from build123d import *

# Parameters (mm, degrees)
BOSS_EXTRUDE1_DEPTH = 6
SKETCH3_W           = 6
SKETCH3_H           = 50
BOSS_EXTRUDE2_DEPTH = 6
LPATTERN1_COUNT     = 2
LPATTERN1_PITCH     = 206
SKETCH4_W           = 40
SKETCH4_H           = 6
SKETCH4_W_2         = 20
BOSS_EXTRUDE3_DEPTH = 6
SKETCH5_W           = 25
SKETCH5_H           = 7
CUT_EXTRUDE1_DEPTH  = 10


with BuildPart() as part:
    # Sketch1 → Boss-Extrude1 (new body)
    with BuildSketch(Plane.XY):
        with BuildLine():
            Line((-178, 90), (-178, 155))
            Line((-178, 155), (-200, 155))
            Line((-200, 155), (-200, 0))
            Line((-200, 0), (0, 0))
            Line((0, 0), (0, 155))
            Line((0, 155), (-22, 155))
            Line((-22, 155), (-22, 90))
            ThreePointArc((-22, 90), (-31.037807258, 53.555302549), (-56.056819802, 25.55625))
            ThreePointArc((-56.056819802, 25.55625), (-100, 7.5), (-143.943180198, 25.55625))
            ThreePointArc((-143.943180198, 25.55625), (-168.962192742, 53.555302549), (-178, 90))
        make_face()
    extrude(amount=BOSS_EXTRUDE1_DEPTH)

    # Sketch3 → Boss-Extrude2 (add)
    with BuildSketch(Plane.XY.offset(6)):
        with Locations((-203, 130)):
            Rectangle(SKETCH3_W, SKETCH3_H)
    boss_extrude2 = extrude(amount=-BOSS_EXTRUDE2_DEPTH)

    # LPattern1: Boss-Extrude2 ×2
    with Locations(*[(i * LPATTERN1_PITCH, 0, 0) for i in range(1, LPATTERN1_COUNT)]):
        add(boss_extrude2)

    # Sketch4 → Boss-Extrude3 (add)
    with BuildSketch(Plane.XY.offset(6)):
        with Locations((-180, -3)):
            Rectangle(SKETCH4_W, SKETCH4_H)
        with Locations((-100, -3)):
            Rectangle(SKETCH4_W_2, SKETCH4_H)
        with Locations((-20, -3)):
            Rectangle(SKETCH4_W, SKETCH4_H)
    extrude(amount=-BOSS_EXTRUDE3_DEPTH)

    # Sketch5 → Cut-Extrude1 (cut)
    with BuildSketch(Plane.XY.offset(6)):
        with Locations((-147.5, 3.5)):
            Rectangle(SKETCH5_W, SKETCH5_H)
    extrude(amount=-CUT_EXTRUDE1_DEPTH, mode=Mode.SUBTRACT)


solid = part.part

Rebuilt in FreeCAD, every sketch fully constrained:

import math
import FreeCAD as App
import Part
import Sketcher
Q = App.Units.Quantity

doc = App.newDocument("Part")
params = doc.addObject("Spreadsheet::Sheet", "Params")
for row, (alias, value) in enumerate([
    ("sketch1_radius", "78 mm"),
    ("sketch1_radius2", "62.5 mm"),
    ("sketch1_width", "22 mm"),
    ("sketch1_height", "65 mm"),
    ("sketch1_height2", "155 mm"),
    ("pad1_length", "6 mm"),
    ("sketch2_width", "6 mm"),
    ("sketch2_height", "50 mm"),
    ("pad2_length", "6 mm"),
    ("linearpattern_pitch", "206 mm"),
    ("sketch3_width", "40 mm"),
    ("sketch3_width2", "20 mm"),
    ("sketch3_height", "6 mm"),
    ("pad3_length", "6 mm"),
    ("sketch4_width", "25 mm"),
    ("sketch4_height", "7 mm"),
    ("pocket1_length", "10 mm"),
], start=1):
    params.set(f"A{row}", alias)
    params.set(f"B{row}", "=" + value)
    params.setAlias(f"B{row}", alias)

body = doc.addObject("PartDesign::Body", "Body")

sketch1 = body.newObject("Sketcher::SketchObject", "Sketch")
sketch1.AttachmentSupport = (doc.getObject("XY_Plane"), [""])
sketch1.MapMode = "FlatFace"
sketch1.addGeometry([
    Part.LineSegment(App.Vector(-178, 90, 0), App.Vector(-178, 155, 0)),
    Part.LineSegment(App.Vector(-178, 155, 0), App.Vector(-200, 155, 0)),
    Part.LineSegment(App.Vector(-200, 155, 0), App.Vector(-200, 0, 0)),
    Part.LineSegment(App.Vector(-200, 0, 0), App.Vector(0, 0, 0)),
    Part.LineSegment(App.Vector(0, 0, 0), App.Vector(0, 155, 0)),
    Part.LineSegment(App.Vector(0, 155, 0), App.Vector(-22, 155, 0)),
    Part.LineSegment(App.Vector(-22, 155, 0), App.Vector(-22, 90, 0)),
    Part.ArcOfCircle(Part.Circle(App.Vector(-100, 90, 0), App.Vector(0, 0, 1), 78), math.radians(-56), math.radians(0)),
    Part.ArcOfCircle(Part.Circle(App.Vector(-100, 70, 0), App.Vector(0, 0, 1), 62), math.radians(-135), math.radians(-45)),
    Part.ArcOfCircle(Part.Circle(App.Vector(-100, 90, 0), App.Vector(0, 0, 1), 78), math.radians(180), math.radians(236)),
], False)
sketch1.addConstraint([
    Sketcher.Constraint("Coincident", 0, 2, 1, 1),
    Sketcher.Constraint("Coincident", 1, 2, 2, 1),
    Sketcher.Constraint("Coincident", 2, 2, 3, 1),
    Sketcher.Constraint("Coincident", 3, 2, 4, 1),
    Sketcher.Constraint("Coincident", 4, 2, 5, 1),
    Sketcher.Constraint("Coincident", 5, 2, 6, 1),
    Sketcher.Constraint("Tangent", 6, 2, 7, 2),
    Sketcher.Constraint("Coincident", 7, 1, 8, 2),
    Sketcher.Constraint("Coincident", 8, 1, 9, 2),
    Sketcher.Constraint("Tangent", 9, 1, 0, 1),
    Sketcher.Constraint("Vertical", 0),
    Sketcher.Constraint("Horizontal", 1),
    Sketcher.Constraint("Vertical", 2),
    Sketcher.Constraint("Horizontal", 3),
    Sketcher.Constraint("Vertical", 4),
    Sketcher.Constraint("Horizontal", 5),
    Sketcher.Constraint("Vertical", 6),
    Sketcher.Constraint("Coincident", 3, 2, -1, 1),
    Sketcher.Constraint("Coincident", 9, 3, 7, 3),
    Sketcher.Constraint("Equal", 7, 9),
    Sketcher.Constraint("Horizontal", 1, 2, 4, 2),
    Sketcher.Constraint("Horizontal", 7, 1, 8, 1),
    Sketcher.Constraint("Equal", 1, 5),
    Sketcher.Constraint("Radius", 7, Q("78 mm")),
    Sketcher.Constraint("Radius", 8, Q("62.5 mm")),
    Sketcher.Constraint("DistanceX", 1, 2, 1, 1, Q("22 mm")),
    Sketcher.Constraint("DistanceY", 0, 1, 0, 2, Q("65 mm")),
    Sketcher.Constraint("DistanceY", 2, 2, 2, 1, Q("155 mm")),
    Sketcher.Constraint("DistanceY", -1, 1, 8, 3, Q("70 mm")),
])
sketch1.setExpression("Constraints[23]", "Params.sketch1_radius")
sketch1.setExpression("Constraints[24]", "Params.sketch1_radius2")
sketch1.setExpression("Constraints[25]", "Params.sketch1_width")
sketch1.setExpression("Constraints[26]", "Params.sketch1_height")
sketch1.setExpression("Constraints[27]", "Params.sketch1_height2")
pad1 = body.newObject("PartDesign::Pad", "Pad")
pad1.Profile = sketch1
pad1.setExpression("Length", "Params.pad1_length")

sketch2 = body.newObject("Sketcher::SketchObject", "Sketch001")
sketch2.AttachmentSupport = (doc.getObject("XY_Plane"), [""])
sketch2.MapMode = "FlatFace"
sketch2.AttachmentOffset = App.Placement(App.Vector(0, 0, 6), App.Rotation())
sketch2.addGeometry([
    Part.LineSegment(App.Vector(-206, 155, 0), App.Vector(-206, 105, 0)),
    Part.LineSegment(App.Vector(-206, 105, 0), App.Vector(-200, 105, 0)),
    Part.LineSegment(App.Vector(-200, 105, 0), App.Vector(-200, 155, 0)),
    Part.LineSegment(App.Vector(-200, 155, 0), App.Vector(-206, 155, 0)),
], False)
sketch2.addConstraint([
    Sketcher.Constraint("Coincident", 0, 2, 1, 1),
    Sketcher.Constraint("Coincident", 1, 2, 2, 1),
    Sketcher.Constraint("Coincident", 2, 2, 3, 1),
    Sketcher.Constraint("Coincident", 3, 2, 0, 1),
    Sketcher.Constraint("Vertical", 0),
    Sketcher.Constraint("Horizontal", 1),
    Sketcher.Constraint("Vertical", 2),
    Sketcher.Constraint("Horizontal", 3),
    Sketcher.Constraint("DistanceX", 1, 1, 1, 2, Q("6 mm")),
    Sketcher.Constraint("DistanceY", 0, 2, 0, 1, Q("50 mm")),
    Sketcher.Constraint("DistanceX", 0, 2, -1, 1, Q("206 mm")),
    Sketcher.Constraint("DistanceY", -1, 1, 0, 2, Q("105 mm")),
])
sketch2.setExpression("Constraints[8]", "Params.sketch2_width")
sketch2.setExpression("Constraints[9]", "Params.sketch2_height")
pad2 = body.newObject("PartDesign::Pad", "Pad001")
pad2.Profile = sketch2
pad2.setExpression("Length", "Params.pad2_length")
pad2.Reversed = True
doc.recompute()

linearpattern = body.newObject("PartDesign::LinearPattern", "LinearPattern")
linearpattern.Originals = [pad2]
linearpattern.Direction = (doc.getObject("X_Axis"), [""])
linearpattern.Mode = "offset"
linearpattern.setExpression("Offset", "Params.linearpattern_pitch")
linearpattern.Occurrences = 2
body.Tip = linearpattern

sketch3 = body.newObject("Sketcher::SketchObject", "Sketch002")
sketch3.AttachmentSupport = (doc.getObject("XY_Plane"), [""])
sketch3.MapMode = "FlatFace"
sketch3.AttachmentOffset = App.Placement(App.Vector(0, 0, 6), App.Rotation())
sketch3.addGeometry([
    Part.LineSegment(App.Vector(-200, 0, 0), App.Vector(-200, -6, 0)),
    Part.LineSegment(App.Vector(-200, -6, 0), App.Vector(-160, -6, 0)),
    Part.LineSegment(App.Vector(-160, -6, 0), App.Vector(-160, 0, 0)),
    Part.LineSegment(App.Vector(-160, 0, 0), App.Vector(-200, 0, 0)),
    Part.LineSegment(App.Vector(-110, 0, 0), App.Vector(-110, -6, 0)),
    Part.LineSegment(App.Vector(-110, -6, 0), App.Vector(-90, -6, 0)),
    Part.LineSegment(App.Vector(-90, -6, 0), App.Vector(-90, 0, 0)),
    Part.LineSegment(App.Vector(-90, 0, 0), App.Vector(-110, 0, 0)),
    Part.LineSegment(App.Vector(-40, 0, 0), App.Vector(-40, -6, 0)),
    Part.LineSegment(App.Vector(-40, -6, 0), App.Vector(0, -6, 0)),
    Part.LineSegment(App.Vector(0, -6, 0), App.Vector(0, 0, 0)),
    Part.LineSegment(App.Vector(0, 0, 0), App.Vector(-40, 0, 0)),
], False)
sketch3.addConstraint([
    Sketcher.Constraint("Coincident", 0, 2, 1, 1),
    Sketcher.Constraint("Coincident", 1, 2, 2, 1),
    Sketcher.Constraint("Coincident", 2, 2, 3, 1),
    Sketcher.Constraint("Coincident", 3, 2, 0, 1),
    Sketcher.Constraint("Coincident", 4, 2, 5, 1),
    Sketcher.Constraint("Coincident", 5, 2, 6, 1),
    Sketcher.Constraint("Coincident", 6, 2, 7, 1),
    Sketcher.Constraint("Coincident", 7, 2, 4, 1),
    Sketcher.Constraint("Coincident", 8, 2, 9, 1),
    Sketcher.Constraint("Coincident", 9, 2, 10, 1),
    Sketcher.Constraint("Coincident", 10, 2, 11, 1),
    Sketcher.Constraint("Coincident", 11, 2, 8, 1),
    Sketcher.Constraint("Vertical", 0),
    Sketcher.Constraint("Horizontal", 1),
    Sketcher.Constraint("Vertical", 2),
    Sketcher.Constraint("Horizontal", 3),
    Sketcher.Constraint("Vertical", 4),
    Sketcher.Constraint("Horizontal", 5),
    Sketcher.Constraint("Vertical", 6),
    Sketcher.Constraint("Horizontal", 7),
    Sketcher.Constraint("Vertical", 8),
    Sketcher.Constraint("Horizontal", 9),
    Sketcher.Constraint("Vertical", 10),
    Sketcher.Constraint("Horizontal", 11),
    Sketcher.Constraint("Coincident", 10, 2, -1, 1),
    Sketcher.Constraint("PointOnObject", 2, 2, -1),
    Sketcher.Constraint("PointOnObject", 6, 2, -1),
    Sketcher.Constraint("Horizontal", 1, 2, 4, 2),
    Sketcher.Constraint("Horizontal", 5, 2, 8, 2),
    Sketcher.Constraint("Equal", 3, 9),
    Sketcher.Constraint("DistanceX", 1, 1, 1, 2, Q("40 mm")),
    Sketcher.Constraint("DistanceX", 5, 1, 5, 2, Q("20 mm")),
    Sketcher.Constraint("DistanceY", 0, 2, 0, 1, Q("6 mm")),
    Sketcher.Constraint("DistanceX", 0, 2, -1, 1, Q("200 mm")),
    Sketcher.Constraint("DistanceX", 4, 2, -1, 1, Q("110 mm")),
])
sketch3.setExpression("Constraints[30]", "Params.sketch3_width")
sketch3.setExpression("Constraints[31]", "Params.sketch3_width2")
sketch3.setExpression("Constraints[32]", "Params.sketch3_height")
pad3 = body.newObject("PartDesign::Pad", "Pad002")
pad3.Profile = sketch3
pad3.setExpression("Length", "Params.pad3_length")
pad3.Reversed = True

sketch4 = body.newObject("Sketcher::SketchObject", "Sketch003")
sketch4.AttachmentSupport = (doc.getObject("XY_Plane"), [""])
sketch4.MapMode = "FlatFace"
sketch4.AttachmentOffset = App.Placement(App.Vector(0, 0, 6), App.Rotation())
sketch4.addGeometry([
    Part.LineSegment(App.Vector(-160, 7, 0), App.Vector(-160, 0, 0)),
    Part.LineSegment(App.Vector(-160, 0, 0), App.Vector(-135, 0, 0)),
    Part.LineSegment(App.Vector(-135, 0, 0), App.Vector(-135, 7, 0)),
    Part.LineSegment(App.Vector(-135, 7, 0), App.Vector(-160, 7, 0)),
], False)
sketch4.addConstraint([
    Sketcher.Constraint("Coincident", 0, 2, 1, 1),
    Sketcher.Constraint("Coincident", 1, 2, 2, 1),
    Sketcher.Constraint("Coincident", 2, 2, 3, 1),
    Sketcher.Constraint("Coincident", 3, 2, 0, 1),
    Sketcher.Constraint("Vertical", 0),
    Sketcher.Constraint("Horizontal", 1),
    Sketcher.Constraint("Vertical", 2),
    Sketcher.Constraint("Horizontal", 3),
    Sketcher.Constraint("PointOnObject", 0, 2, -1),
    Sketcher.Constraint("DistanceX", 1, 1, 1, 2, Q("25 mm")),
    Sketcher.Constraint("DistanceY", 0, 2, 0, 1, Q("7 mm")),
    Sketcher.Constraint("DistanceX", 0, 2, -1, 1, Q("160 mm")),
])
sketch4.setExpression("Constraints[9]", "Params.sketch4_width")
sketch4.setExpression("Constraints[10]", "Params.sketch4_height")
pocket1 = body.newObject("PartDesign::Pocket", "Pocket")
pocket1.Profile = sketch4
pocket1.setExpression("Length", "Params.pocket1_length")

doc.recompute()
